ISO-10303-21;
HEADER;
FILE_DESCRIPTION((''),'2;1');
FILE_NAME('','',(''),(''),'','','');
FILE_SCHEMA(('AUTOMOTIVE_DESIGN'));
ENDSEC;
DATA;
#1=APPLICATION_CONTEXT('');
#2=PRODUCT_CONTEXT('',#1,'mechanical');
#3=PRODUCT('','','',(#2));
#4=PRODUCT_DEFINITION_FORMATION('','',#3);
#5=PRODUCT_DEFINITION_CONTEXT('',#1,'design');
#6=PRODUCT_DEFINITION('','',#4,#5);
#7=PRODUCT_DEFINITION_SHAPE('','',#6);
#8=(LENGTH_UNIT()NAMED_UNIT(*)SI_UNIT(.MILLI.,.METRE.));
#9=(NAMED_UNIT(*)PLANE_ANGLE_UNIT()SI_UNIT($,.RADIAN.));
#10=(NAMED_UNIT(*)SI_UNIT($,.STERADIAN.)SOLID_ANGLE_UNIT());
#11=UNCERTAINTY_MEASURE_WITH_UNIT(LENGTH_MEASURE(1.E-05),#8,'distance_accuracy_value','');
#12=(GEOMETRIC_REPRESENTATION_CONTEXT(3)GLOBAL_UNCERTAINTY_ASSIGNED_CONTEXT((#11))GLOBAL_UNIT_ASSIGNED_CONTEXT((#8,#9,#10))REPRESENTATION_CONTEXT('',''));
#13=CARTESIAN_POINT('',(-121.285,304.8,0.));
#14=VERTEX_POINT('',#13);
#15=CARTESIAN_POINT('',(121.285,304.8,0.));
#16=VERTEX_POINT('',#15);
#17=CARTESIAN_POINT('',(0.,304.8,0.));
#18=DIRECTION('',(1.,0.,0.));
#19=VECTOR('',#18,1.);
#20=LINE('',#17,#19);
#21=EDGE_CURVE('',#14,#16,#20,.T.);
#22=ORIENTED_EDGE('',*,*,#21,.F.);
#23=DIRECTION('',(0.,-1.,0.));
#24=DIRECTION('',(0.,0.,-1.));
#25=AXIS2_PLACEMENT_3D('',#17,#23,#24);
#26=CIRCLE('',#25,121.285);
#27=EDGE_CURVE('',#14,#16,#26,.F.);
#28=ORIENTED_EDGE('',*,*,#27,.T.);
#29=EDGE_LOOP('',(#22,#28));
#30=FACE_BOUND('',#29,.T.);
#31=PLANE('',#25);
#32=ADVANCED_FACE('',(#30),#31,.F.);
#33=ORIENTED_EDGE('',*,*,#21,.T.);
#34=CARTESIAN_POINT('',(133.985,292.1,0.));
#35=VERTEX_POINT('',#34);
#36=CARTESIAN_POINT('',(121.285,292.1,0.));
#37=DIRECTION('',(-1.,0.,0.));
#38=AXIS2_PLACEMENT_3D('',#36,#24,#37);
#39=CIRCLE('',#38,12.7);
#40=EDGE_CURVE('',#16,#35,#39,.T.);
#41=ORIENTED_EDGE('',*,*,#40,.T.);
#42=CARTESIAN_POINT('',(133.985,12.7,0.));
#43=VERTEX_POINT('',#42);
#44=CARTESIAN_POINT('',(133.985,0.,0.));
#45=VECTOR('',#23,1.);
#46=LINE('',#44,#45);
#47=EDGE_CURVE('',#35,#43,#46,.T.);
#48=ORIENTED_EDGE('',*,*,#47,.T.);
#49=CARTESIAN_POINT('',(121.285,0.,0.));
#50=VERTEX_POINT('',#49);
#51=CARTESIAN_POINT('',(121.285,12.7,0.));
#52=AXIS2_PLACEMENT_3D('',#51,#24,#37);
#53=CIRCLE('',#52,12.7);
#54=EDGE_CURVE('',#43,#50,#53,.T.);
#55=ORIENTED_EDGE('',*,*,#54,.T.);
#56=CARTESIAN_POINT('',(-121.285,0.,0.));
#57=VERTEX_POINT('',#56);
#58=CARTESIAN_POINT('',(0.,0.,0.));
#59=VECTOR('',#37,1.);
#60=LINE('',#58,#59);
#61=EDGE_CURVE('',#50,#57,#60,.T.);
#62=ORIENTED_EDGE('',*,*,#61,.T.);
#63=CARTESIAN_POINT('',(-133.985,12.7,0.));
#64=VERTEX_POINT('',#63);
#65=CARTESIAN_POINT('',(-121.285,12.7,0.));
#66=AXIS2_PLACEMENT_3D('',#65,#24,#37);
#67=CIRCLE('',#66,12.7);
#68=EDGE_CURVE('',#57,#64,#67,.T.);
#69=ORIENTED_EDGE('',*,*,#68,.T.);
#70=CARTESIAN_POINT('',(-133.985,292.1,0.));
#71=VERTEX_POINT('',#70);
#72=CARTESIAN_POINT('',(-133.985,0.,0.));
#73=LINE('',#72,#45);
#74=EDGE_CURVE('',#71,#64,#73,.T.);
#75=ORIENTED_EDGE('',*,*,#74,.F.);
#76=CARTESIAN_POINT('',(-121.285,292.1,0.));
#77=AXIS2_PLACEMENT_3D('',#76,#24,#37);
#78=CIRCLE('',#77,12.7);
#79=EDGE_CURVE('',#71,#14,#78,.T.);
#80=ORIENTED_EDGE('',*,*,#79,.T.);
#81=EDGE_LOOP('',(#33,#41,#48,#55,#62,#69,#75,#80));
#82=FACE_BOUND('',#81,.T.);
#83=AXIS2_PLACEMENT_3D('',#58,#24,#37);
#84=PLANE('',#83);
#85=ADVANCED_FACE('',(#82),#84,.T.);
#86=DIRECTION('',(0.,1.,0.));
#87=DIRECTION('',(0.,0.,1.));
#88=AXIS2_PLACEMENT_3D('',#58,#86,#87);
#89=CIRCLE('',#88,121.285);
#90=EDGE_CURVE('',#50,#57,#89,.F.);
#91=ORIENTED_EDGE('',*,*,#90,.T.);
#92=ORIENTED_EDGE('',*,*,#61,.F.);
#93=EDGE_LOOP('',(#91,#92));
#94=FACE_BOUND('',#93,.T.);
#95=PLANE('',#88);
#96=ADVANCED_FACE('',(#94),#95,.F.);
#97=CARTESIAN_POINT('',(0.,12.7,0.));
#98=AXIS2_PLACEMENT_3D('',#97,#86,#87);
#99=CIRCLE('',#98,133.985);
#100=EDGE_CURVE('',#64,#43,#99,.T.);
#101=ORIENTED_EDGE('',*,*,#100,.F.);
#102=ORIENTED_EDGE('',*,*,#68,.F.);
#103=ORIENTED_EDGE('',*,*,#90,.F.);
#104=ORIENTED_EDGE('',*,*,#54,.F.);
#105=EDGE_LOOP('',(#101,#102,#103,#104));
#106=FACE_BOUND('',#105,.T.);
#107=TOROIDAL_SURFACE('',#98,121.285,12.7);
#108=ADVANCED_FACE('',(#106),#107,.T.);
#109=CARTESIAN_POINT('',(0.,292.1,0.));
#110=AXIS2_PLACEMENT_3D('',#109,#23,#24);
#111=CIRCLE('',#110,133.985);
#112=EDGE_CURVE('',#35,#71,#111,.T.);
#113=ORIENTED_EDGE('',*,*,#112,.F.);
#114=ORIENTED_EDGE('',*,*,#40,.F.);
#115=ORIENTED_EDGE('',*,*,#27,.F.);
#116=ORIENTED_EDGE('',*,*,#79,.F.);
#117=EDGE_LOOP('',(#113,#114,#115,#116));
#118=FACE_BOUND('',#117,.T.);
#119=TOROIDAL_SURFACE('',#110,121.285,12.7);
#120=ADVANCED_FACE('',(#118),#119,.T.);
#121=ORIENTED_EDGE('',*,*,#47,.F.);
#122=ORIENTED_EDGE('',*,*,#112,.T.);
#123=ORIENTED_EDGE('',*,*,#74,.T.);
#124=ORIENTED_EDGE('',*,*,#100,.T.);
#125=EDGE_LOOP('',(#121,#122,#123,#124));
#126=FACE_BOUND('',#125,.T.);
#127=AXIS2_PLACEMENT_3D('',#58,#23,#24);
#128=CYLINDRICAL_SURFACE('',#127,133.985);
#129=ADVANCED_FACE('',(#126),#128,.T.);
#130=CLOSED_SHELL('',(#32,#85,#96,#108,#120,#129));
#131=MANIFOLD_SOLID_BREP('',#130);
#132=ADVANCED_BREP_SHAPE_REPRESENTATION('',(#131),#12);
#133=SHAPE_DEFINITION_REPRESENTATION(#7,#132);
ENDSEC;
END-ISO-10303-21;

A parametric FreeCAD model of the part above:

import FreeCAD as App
import Part
import Sketcher

V = App.Vector
Q = App.Units.Quantity


def edges_at(feature, points):
    """Names of the edges that pass closest to the given points."""
    edges = feature.Shape.Edges
    near = lambda p: min(range(len(edges)), key=lambda i: edges[i].distToShape(Part.Vertex(*p))[0])
    return sorted({f"Edge{near(p) + 1}" for p in points})

doc = App.newDocument("Part")
params = doc.addObject("Spreadsheet::Sheet", "Params")
for row, (alias, value) in enumerate([
    ("sketch1_height", "12 in"),
    ("sketch1_width", "5.275 in"),
    ("revolution_angle", "180 deg"),
    ("fillet_radius", "0.5 in"),
], start=1):
    params.set(f"A{row}", alias)
    params.set(f"B{row}", "=" + value)
    params.setAlias(f"B{row}", alias)

body = doc.addObject("PartDesign::Body", "Body")

sketch1 = body.newObject("Sketcher::SketchObject", "Sketch")
sketch1.AttachmentSupport = (doc.getObject("XY_Plane"), [""])
sketch1.MapMode = "FlatFace"
sketch1.addGeometry([
    Part.LineSegment(V(-134, 305, 0), V(-134, 0, 0)),
    Part.LineSegment(V(-134, 0, 0), V(0, 0, 0)),
    Part.LineSegment(V(0, 0, 0), V(0, 305, 0)),
    Part.LineSegment(V(0, 305, 0), V(-134, 305, 0)),
], False)
sketch1.addConstraint([
    Sketcher.Constraint("Coincident", 0, 2, 1, 1),
    Sketcher.Constraint("Coincident", 1, 2, 2, 1),
    Sketcher.Constraint("Coincident", 2, 2, 3, 1),
    Sketcher.Constraint("Coincident", 3, 2, 0, 1),
    Sketcher.Constraint("Vertical", 0),
    Sketcher.Constraint("Horizontal", 1),
    Sketcher.Constraint("Vertical", 2),
    Sketcher.Constraint("Horizontal", 3),
    Sketcher.Constraint("Coincident", 1, 2, -1, 1),
    Sketcher.Constraint("DistanceY", 0, 2, 0, 1, Q("12 in")),
    Sketcher.Constraint("DistanceX", 1, 1, 1, 2, Q("5.275 in")),
])
sketch1.setExpression("Constraints[9]", "Params.sketch1_height")
sketch1.setExpression("Constraints[10]", "Params.sketch1_width")
revolution = body.newObject("PartDesign::Revolution", "Revolution")
revolution.Profile = sketch1
revolution.ReferenceAxis = (sketch1, ["V_Axis"])
revolution.setExpression("Angle", "Params.revolution_angle")
doc.recompute()

fillet = body.newObject("PartDesign::Fillet", "Fillet")
fillet.Base = (revolution, edges_at(revolution, [(0, 0, 133.985), (0, 304.8, 133.985)]))
fillet.setExpression("Radius", "Params.fillet_radius")

doc.recompute()
